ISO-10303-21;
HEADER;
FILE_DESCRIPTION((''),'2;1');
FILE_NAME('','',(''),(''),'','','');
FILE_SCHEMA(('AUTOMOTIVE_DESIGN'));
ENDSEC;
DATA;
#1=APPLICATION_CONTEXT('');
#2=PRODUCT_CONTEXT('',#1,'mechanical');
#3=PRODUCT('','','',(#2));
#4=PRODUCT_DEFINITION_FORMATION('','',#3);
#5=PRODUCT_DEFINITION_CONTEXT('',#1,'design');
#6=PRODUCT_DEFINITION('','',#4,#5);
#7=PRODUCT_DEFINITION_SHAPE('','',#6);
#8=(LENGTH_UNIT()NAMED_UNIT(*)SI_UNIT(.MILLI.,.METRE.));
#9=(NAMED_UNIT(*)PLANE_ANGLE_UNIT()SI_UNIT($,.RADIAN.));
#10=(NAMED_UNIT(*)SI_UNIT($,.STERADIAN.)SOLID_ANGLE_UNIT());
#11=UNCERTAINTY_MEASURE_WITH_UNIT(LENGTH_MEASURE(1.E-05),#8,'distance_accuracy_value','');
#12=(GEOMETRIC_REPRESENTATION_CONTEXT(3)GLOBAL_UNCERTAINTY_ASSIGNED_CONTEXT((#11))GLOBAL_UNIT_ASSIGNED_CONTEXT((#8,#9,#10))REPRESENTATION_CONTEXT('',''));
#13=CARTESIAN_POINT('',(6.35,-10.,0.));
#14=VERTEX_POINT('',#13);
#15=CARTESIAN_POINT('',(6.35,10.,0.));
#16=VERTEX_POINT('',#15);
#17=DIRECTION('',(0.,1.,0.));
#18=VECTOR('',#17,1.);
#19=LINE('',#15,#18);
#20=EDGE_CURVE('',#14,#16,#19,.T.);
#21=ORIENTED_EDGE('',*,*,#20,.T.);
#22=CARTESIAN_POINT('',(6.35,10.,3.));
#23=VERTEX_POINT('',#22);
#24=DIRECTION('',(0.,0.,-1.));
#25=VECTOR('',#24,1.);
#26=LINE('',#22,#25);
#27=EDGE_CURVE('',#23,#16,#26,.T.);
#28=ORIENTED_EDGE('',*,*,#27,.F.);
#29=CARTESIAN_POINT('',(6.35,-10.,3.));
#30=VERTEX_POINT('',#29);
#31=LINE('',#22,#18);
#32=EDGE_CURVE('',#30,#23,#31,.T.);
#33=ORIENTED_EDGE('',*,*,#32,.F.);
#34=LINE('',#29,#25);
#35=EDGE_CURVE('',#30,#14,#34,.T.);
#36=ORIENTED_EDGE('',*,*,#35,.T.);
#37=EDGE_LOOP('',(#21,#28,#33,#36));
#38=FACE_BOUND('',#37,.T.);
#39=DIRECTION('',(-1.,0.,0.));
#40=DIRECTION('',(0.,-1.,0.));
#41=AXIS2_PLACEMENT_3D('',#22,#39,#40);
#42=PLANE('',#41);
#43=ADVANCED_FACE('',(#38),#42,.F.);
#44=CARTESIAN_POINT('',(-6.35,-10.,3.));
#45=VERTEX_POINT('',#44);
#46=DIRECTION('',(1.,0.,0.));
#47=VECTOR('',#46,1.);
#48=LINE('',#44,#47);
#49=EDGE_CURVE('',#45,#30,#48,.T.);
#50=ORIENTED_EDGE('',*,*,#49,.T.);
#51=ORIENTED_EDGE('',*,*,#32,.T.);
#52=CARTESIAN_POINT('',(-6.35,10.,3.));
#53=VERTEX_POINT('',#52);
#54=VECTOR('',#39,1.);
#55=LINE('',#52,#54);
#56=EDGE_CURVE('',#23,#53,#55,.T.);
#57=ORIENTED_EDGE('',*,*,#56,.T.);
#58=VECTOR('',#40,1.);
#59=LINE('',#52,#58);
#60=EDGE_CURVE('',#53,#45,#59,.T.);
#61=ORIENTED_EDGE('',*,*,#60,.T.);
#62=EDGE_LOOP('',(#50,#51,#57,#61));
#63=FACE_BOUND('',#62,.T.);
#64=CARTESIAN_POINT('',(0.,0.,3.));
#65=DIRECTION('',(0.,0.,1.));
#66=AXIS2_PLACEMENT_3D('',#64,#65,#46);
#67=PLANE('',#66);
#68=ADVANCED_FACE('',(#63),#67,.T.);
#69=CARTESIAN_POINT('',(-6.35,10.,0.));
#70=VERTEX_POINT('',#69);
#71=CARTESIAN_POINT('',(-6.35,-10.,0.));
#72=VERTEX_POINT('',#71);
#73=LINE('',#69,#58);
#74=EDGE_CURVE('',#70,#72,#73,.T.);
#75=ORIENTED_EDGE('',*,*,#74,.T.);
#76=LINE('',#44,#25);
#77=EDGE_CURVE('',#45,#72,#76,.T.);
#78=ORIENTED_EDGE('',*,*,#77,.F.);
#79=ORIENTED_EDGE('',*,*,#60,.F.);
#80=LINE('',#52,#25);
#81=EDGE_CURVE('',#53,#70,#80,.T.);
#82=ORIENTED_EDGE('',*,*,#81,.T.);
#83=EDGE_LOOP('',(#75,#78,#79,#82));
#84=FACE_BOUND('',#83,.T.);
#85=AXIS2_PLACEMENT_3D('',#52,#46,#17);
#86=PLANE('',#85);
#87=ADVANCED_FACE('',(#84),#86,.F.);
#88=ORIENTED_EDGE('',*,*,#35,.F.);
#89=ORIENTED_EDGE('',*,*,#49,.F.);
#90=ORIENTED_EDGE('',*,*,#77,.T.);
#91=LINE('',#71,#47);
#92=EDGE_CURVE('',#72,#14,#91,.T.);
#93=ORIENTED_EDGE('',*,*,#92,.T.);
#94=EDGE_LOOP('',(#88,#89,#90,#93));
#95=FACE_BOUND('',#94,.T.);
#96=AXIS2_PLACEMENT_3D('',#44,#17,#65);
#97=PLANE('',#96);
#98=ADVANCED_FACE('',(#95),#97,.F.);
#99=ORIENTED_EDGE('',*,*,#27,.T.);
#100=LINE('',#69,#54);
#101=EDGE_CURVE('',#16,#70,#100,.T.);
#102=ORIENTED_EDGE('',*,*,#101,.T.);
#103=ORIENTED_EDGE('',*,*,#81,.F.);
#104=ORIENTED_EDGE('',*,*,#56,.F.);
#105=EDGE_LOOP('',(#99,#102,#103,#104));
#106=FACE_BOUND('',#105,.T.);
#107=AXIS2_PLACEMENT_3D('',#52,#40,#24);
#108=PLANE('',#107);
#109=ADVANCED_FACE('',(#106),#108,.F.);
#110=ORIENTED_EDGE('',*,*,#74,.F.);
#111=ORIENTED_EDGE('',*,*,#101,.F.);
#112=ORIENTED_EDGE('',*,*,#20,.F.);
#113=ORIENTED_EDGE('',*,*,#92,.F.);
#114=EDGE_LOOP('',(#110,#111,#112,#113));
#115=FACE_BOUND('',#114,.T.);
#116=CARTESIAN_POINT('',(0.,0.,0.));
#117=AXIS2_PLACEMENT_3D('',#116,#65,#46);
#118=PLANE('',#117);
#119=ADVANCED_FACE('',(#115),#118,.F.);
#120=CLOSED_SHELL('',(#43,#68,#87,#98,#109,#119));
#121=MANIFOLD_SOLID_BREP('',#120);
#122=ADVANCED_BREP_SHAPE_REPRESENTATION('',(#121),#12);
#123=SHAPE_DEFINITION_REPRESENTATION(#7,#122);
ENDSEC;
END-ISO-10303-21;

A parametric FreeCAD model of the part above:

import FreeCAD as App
import Part
import Sketcher

V = App.Vector


def add_polygon(sketch, points):
    """Adds a closed chain of lines whose ends are joined by coincident constraints."""
    first, n = sketch.GeometryCount, len(points)
    for a, b in zip(points, points[1:] + points[:1]):
        sketch.addGeometry(Part.LineSegment(App.Vector(*a, 0), App.Vector(*b, 0)), False)
    for i in range(n):
        sketch.addConstraint(Sketcher.Constraint("Coincident", first + i, 2, first + (i + 1) % n, 1))

doc = App.newDocument("Part")
body = doc.addObject("PartDesign::Body", "Body")

sketch1 = body.newObject("Sketcher::SketchObject", "Sketch")
sketch1.AttachmentSupport = (doc.getObject("XY_Plane"), [""])
sketch1.MapMode = "FlatFace"
add_polygon(sketch1, [(-6, 10), (-6, -10), (6, -10), (6, 10)])
sketch1.addConstraint([
    Sketcher.Constraint("Vertical", 0),
    Sketcher.Constraint("Horizontal", 1),
    Sketcher.Constraint("Vertical", 2),
    Sketcher.Constraint("Horizontal", 3),
    Sketcher.Constraint("Symmetric", 0, 2, 2, 2, -1, 1),
    Sketcher.Constraint("DistanceY", 0, 2, 0, 1, 20.0),
    Sketcher.Constraint("DistanceX", 1, 1, 1, 2, 12.7),
])
pad1 = body.newObject("PartDesign::Pad", "Pad")
pad1.Profile = sketch1
pad1.Length = 3

doc.recompute()
